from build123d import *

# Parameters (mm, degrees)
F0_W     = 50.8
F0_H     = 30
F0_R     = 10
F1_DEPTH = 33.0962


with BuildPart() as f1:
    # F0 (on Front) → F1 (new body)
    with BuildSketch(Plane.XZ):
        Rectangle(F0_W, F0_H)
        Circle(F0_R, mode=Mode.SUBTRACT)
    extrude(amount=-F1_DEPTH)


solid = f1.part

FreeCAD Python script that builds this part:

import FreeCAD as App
import Part
import Sketcher
from FreeCAD import Vector

doc = App.newDocument("Part")
params = doc.addObject("Spreadsheet::Sheet", "Params")
for row, (alias, value) in enumerate([
    ("sketch1_diameter", "20 mm"),
    ("sketch1_height", "30 mm"),
    ("sketch1_width", "50.8 mm"),
    ("pad1_length", "33.0962 mm"),
], start=1):
    params.set(f"A{row}", alias)
    params.set(f"B{row}", "=" + value)
    params.setAlias(f"B{row}", alias)

body = doc.addObject("PartDesign::Body", "Body")

sketch1 = body.newObject("Sketcher::SketchObject", "Sketch")
sketch1.AttachmentSupport = (doc.getObject("XZ_Plane"), [""])
sketch1.MapMode = "FlatFace"
sketch1.addGeometry([
    Part.LineSegment(Vector(-25.4, 15, 0), Vector(-25.4, -15, 0)),
    Part.LineSegment(Vector(-25.4, -15, 0), Vector(25.4, -15, 0)),
    Part.LineSegment(Vector(25.4, -15, 0), Vector(25.4, 15, 0)),
    Part.LineSegment(Vector(25.4, 15, 0), Vector(-25.4, 15, 0)),
    Part.Circle(Vector(0, 0, 0), Vector(0, 0, 1), 10),
], False)
sketch1.addConstraint([
    Sketcher.Constraint("Coincident", 0, 2, 1, 1),
    Sketcher.Constraint("Coincident", 1, 2, 2, 1),
    Sketcher.Constraint("Coincident", 2, 2, 3, 1),
    Sketcher.Constraint("Coincident", 3, 2, 0, 1),
    Sketcher.Constraint("Vertical", 0),
    Sketcher.Constraint("Horizontal", 1),
    Sketcher.Constraint("Vertical", 2),
    Sketcher.Constraint("Horizontal", 3),
    Sketcher.Constraint("Coincident", 4, 3, -1, 1),
    Sketcher.Constraint("Symmetric", 0, 2, 2, 2, -1, 1),
    Sketcher.Constraint("Diameter", 4, 20.0),
    Sketcher.Constraint("DistanceY", 0, 2, 0, 1, 30.0),
    Sketcher.Constraint("DistanceX", 1, 1, 1, 2, 50.8),
])
sketch1.setExpression("Constraints[10]", "Params.sketch1_diameter")
sketch1.setExpression("Constraints[11]", "Params.sketch1_height")
sketch1.setExpression("Constraints[12]", "Params.sketch1_width")
pad1 = body.newObject("PartDesign::Pad", "Pad")
pad1.Profile = sketch1
pad1.setExpression("Length", "Params.pad1_length")
pad1.Reversed = True

doc.recompute()
